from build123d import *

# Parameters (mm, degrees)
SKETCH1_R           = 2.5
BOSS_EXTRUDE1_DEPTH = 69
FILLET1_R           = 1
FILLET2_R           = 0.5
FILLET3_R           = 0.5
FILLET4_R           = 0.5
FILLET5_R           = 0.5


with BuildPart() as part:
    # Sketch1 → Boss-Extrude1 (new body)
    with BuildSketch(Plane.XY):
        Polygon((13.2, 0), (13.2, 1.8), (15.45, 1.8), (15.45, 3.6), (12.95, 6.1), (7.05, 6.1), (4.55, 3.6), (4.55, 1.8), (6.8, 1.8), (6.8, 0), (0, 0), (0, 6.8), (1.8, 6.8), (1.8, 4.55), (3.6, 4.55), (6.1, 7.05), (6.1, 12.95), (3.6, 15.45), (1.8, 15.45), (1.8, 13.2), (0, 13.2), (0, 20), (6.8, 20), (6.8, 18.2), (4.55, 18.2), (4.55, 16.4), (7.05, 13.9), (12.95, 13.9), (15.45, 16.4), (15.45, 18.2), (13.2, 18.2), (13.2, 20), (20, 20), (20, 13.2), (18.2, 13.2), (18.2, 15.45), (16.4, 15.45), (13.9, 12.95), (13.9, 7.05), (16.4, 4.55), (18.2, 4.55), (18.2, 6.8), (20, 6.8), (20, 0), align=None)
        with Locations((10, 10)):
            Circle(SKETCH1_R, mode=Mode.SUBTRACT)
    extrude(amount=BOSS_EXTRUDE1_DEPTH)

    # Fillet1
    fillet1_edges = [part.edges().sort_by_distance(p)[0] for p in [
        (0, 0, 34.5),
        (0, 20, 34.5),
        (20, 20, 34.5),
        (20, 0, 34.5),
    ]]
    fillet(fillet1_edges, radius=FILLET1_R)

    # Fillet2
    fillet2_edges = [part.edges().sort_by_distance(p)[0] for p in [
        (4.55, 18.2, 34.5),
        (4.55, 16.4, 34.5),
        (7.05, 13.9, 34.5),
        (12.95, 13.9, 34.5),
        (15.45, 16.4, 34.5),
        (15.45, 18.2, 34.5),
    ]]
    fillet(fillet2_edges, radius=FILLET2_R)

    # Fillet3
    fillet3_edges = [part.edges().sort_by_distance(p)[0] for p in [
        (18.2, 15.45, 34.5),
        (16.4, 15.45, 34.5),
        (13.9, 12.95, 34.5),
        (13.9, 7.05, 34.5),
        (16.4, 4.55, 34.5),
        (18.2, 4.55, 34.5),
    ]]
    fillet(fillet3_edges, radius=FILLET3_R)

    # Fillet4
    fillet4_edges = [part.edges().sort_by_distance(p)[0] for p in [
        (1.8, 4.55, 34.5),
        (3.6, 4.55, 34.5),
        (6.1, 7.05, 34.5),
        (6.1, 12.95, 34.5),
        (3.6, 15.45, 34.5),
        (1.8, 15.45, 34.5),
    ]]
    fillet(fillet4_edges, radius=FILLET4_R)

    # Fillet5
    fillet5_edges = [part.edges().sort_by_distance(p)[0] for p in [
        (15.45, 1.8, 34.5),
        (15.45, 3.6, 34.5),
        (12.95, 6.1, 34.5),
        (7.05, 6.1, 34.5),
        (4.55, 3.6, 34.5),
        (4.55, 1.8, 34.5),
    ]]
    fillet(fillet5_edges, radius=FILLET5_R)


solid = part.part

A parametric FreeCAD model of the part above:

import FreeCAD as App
import Part
import Sketcher


def edges_at(feature, points):
    """Names of the edges that pass closest to the given points."""
    edges = feature.Shape.Edges
    near = lambda p: min(range(len(edges)), key=lambda i: edges[i].distToShape(Part.Vertex(*p))[0])
    return sorted({f"Edge{near(p) + 1}" for p in points})


def add_polygon(sketch, points):
    """Adds a closed chain of lines whose ends are joined by coincident constraints."""
    first, n = sketch.GeometryCount, len(points)
    for a, b in zip(points, points[1:] + points[:1]):
        sketch.addGeometry(Part.LineSegment(App.Vector(*a, 0), App.Vector(*b, 0)), False)
    for i in range(n):
        sketch.addConstraint(Sketcher.Constraint("Coincident", first + i, 2, first + (i + 1) % n, 1))

doc = App.newDocument("Part")
body = doc.addObject("PartDesign::Body", "Body")

sketch1 = body.newObject("Sketcher::SketchObject", "Sketch")
sketch1.AttachmentSupport = (doc.getObject("XY_Plane"), [""])
sketch1.MapMode = "FlatFace"
add_polygon(sketch1, [(13.2, 1.8), (13.2, 0), (20, 0), (20, 6.8), (18.2, 6.8), (18.2, 4.5), (16.4, 4.5), (13.9, 7), (13.9, 12.9), (16.4, 15.4), (18.2, 15.4), (18.2, 13.2), (20, 13.2), (20, 20), (13.2, 20), (13.2, 18.2), (15.4, 18.2), (15.4, 16.4), (12.9, 13.9), (7, 13.9), (4.5, 16.4), (4.5, 18.2), (6.8, 18.2), (6.8, 20), (0, 20), (0, 13.2), (1.8, 13.2), (1.8, 15.4), (3.6, 15.4), (6.1, 12.9), (6.1, 7), (3.6, 4.5), (1.8, 4.5), (1.8, 6.8), (0, 6.8), (0, 0), (6.8, 0), (6.8, 1.8), (4.5, 1.8), (4.5, 3.6), (7, 6.1), (12.9, 6.1), (15.4, 3.6), (15.4, 1.8)])
sketch1.addGeometry(Part.Circle(App.Vector(10, 10, 0), App.Vector(0, 0, 1), 2.5), False)
sketch1.addConstraint(Sketcher.Constraint("Vertical", 0))
sketch1.addConstraint(Sketcher.Constraint("Horizontal", 1))
sketch1.addConstraint(Sketcher.Constraint("Vertical", 2))
sketch1.addConstraint(Sketcher.Constraint("Horizontal", 3))
sketch1.addConstraint(Sketcher.Constraint("Vertical", 4))
sketch1.addConstraint(Sketcher.Constraint("Horizontal", 5))
sketch1.addConstraint(Sketcher.Constraint("Vertical", 7))
sketch1.addConstraint(Sketcher.Constraint("Horizontal", 9))
sketch1.addConstraint(Sketcher.Constraint("Vertical", 10))
sketch1.addConstraint(Sketcher.Constraint("Horizontal", 11))
sketch1.addConstraint(Sketcher.Constraint("Vertical", 12))
sketch1.addConstraint(Sketcher.Constraint("Horizontal", 13))
sketch1.addConstraint(Sketcher.Constraint("Vertical", 14))
sketch1.addConstraint(Sketcher.Constraint("Horizontal", 15))
sketch1.addConstraint(Sketcher.Constraint("Vertical", 16))
sketch1.addConstraint(Sketcher.Constraint("Horizontal", 18))
sketch1.addConstraint(Sketcher.Constraint("Vertical", 20))
sketch1.addConstraint(Sketcher.Constraint("Horizontal", 21))
sketch1.addConstraint(Sketcher.Constraint("Vertical", 22))
sketch1.addConstraint(Sketcher.Constraint("Horizontal", 23))
sketch1.addConstraint(Sketcher.Constraint("Vertical", 24))
sketch1.addConstraint(Sketcher.Constraint("Horizontal", 25))
sketch1.addConstraint(Sketcher.Constraint("Vertical", 26))
sketch1.addConstraint(Sketcher.Constraint("Horizontal", 27))
sketch1.addConstraint(Sketcher.Constraint("Vertical", 29))
sketch1.addConstraint(Sketcher.Constraint("Horizontal", 31))
sketch1.addConstraint(Sketcher.Constraint("Vertical", 32))
sketch1.addConstraint(Sketcher.Constraint("Horizontal", 33))
sketch1.addConstraint(Sketcher.Constraint("Vertical", 34))
sketch1.addConstraint(Sketcher.Constraint("Horizontal", 35))
sketch1.addConstraint(Sketcher.Constraint("Vertical", 36))
sketch1.addConstraint(Sketcher.Constraint("Horizontal", 37))
sketch1.addConstraint(Sketcher.Constraint("Vertical", 38))
sketch1.addConstraint(Sketcher.Constraint("Horizontal", 40))
sketch1.addConstraint(Sketcher.Constraint("Vertical", 42))
sketch1.addConstraint(Sketcher.Constraint("Horizontal", 43))
sketch1.addConstraint(Sketcher.Constraint("Coincident", 34, 2, -1, 1))
sketch1.addConstraint(Sketcher.Constraint("PointOnObject", 0, 2, -1))
sketch1.addConstraint(Sketcher.Constraint("PointOnObject", 23, 2, -2))
sketch1.addConstraint(Sketcher.Constraint("Perpendicular", 6, 8))
sketch1.addConstraint(Sketcher.Constraint("Parallel", 8, 17))
sketch1.addConstraint(Sketcher.Constraint("Perpendicular", 17, 19))
sketch1.addConstraint(Sketcher.Constraint("Parallel", 19, 28))
sketch1.addConstraint(Sketcher.Constraint("Perpendicular", 28, 30))
sketch1.addConstraint(Sketcher.Constraint("Parallel", 30, 39))
sketch1.addConstraint(Sketcher.Constraint("Perpendicular", 39, 41))
sketch1.addConstraint(Sketcher.Constraint("Horizontal", 16, 2, 19, 2))
sketch1.addConstraint(Sketcher.Constraint("Horizontal", 15, 2, 20, 2))
sketch1.addConstraint(Sketcher.Constraint("Horizontal", 13, 2, 22, 2))
sketch1.addConstraint(Sketcher.Constraint("Horizontal", 11, 2, 24, 2))
sketch1.addConstraint(Sketcher.Constraint("Horizontal", 9, 2, 26, 2))
sketch1.addConstraint(Sketcher.Constraint("Horizontal", 7, 2, 28, 2))
sketch1.addConstraint(Sketcher.Constraint("Horizontal", 6, 2, 29, 2))
sketch1.addConstraint(Sketcher.Constraint("Horizontal", 5, 2, 30, 2))
sketch1.addConstraint(Sketcher.Constraint("Horizontal", 3, 2, 32, 2))
sketch1.addConstraint(Sketcher.Constraint("Horizontal", 38, 2, 41, 2))
sketch1.addConstraint(Sketcher.Constraint("Horizontal", 37, 2, 42, 2))
sketch1.addConstraint(Sketcher.Constraint("Vertical", 5, 2, 8, 2))
sketch1.addConstraint(Sketcher.Constraint("Vertical", 4, 2, 9, 2))
sketch1.addConstraint(Sketcher.Constraint("Vertical", 2, 2, 11, 2))
sketch1.addConstraint(Sketcher.Constraint("Vertical", 0, 2, 13, 2))
sketch1.addConstraint(Sketcher.Constraint("Vertical", 27, 2, 30, 2))
sketch1.addConstraint(Sketcher.Constraint("Vertical", 26, 2, 31, 2))
sketch1.addConstraint(Sketcher.Constraint("Vertical", 22, 2, 35, 2))
sketch1.addConstraint(Sketcher.Constraint("Vertical", 20, 2, 37, 2))
sketch1.addConstraint(Sketcher.Constraint("Vertical", 18, 2, 39, 2))
sketch1.addConstraint(Sketcher.Constraint("Vertical", 17, 2, 40, 2))
sketch1.addConstraint(Sketcher.Constraint("Equal", 3, 5))
sketch1.addConstraint(Sketcher.Constraint("Equal", 15, 21))
sketch1.addConstraint(Sketcher.Constraint("Equal", 13, 23))
sketch1.addConstraint(Sketcher.Constraint("Equal", 11, 25))
sketch1.addConstraint(Sketcher.Constraint("Equal", 25, 27))
sketch1.addConstraint(Sketcher.Constraint("Equal", 33, 0))
sketch1.addConstraint(Sketcher.Constraint("Equal", 35, 2))
sketch1.addConstraint(Sketcher.Constraint("Equal", 43, 4))
sketch1.addConstraint(Sketcher.Constraint("Equal", 40, 7))
sketch1.addConstraint(Sketcher.Constraint("Equal", 4, 10))
sketch1.addConstraint(Sketcher.Constraint("Equal", 2, 12))
sketch1.addConstraint(Sketcher.Constraint("Equal", 0, 14))
sketch1.addConstraint(Sketcher.Constraint("Equal", 14, 16))
sketch1.addConstraint(Sketcher.Constraint("Equal", 36, 38))
sketch1.addConstraint(Sketcher.Constraint("Equal", 8, 17))
sketch1.addConstraint(Sketcher.Constraint("Diameter", 44, 5.0))
sketch1.addConstraint(Sketcher.Constraint("DistanceX", 1, 1, 1, 2, 6.8))
sketch1.addConstraint(Sketcher.Constraint("DistanceX", 3, 2, 3, 1, 1.8))
sketch1.addConstraint(Sketcher.Constraint("DistanceX", 18, 2, 18, 1, 5.9))
sketch1.addConstraint(Sketcher.Constraint("DistanceX", -1, 1, 44, 3, 10.0))
sketch1.addConstraint(Sketcher.Constraint("DistanceY", -1, 1, 44, 3, 10.0))
sketch1.addConstraint(Sketcher.Constraint("DistanceX", -1, 1, 1, 2, 20.0))
sketch1.addConstraint(Sketcher.Constraint("DistanceX", 15, 1, 15, 2, 2.25))
pad1 = body.newObject("PartDesign::Pad", "Pad")
pad1.Profile = sketch1
pad1.Length = 69
doc.recompute()

fillet = body.newObject("PartDesign::Fillet", "Fillet")
fillet.Base = (pad1, edges_at(pad1, [
    (0, 0, 34.5),
    (0, 20, 34.5),
    (20, 20, 34.5),
    (20, 0, 34.5),
]))
fillet.Radius = 1
doc.recompute()

fillet2 = body.newObject("PartDesign::Fillet", "Fillet001")
fillet2.Base = (fillet, edges_at(fillet, [
    (4.55, 18.2, 34.5),
    (4.55, 16.4, 34.5),
    (7.05, 13.9, 34.5),
    (12.95, 13.9, 34.5),
    (15.45, 16.4, 34.5),
    (15.45, 18.2, 34.5),
]))
fillet2.Radius = 0.5
doc.recompute()

fillet3 = body.newObject("PartDesign::Fillet", "Fillet002")
fillet3.Base = (fillet2, edges_at(fillet2, [
    (18.2, 15.45, 34.5),
    (16.4, 15.45, 34.5),
    (13.9, 12.95, 34.5),
    (13.9, 7.05, 34.5),
    (16.4, 4.55, 34.5),
    (18.2, 4.55, 34.5),
]))
fillet3.Radius = 0.5
doc.recompute()

fillet4 = body.newObject("PartDesign::Fillet", "Fillet003")
fillet4.Base = (fillet3, edges_at(fillet3, [
    (1.8, 4.55, 34.5),
    (3.6, 4.55, 34.5),
    (6.1, 7.05, 34.5),
    (6.1, 12.95, 34.5),
    (3.6, 15.45, 34.5),
    (1.8, 15.45, 34.5),
]))
fillet4.Radius = 0.5
doc.recompute()

fillet5 = body.newObject("PartDesign::Fillet", "Fillet004")
fillet5.Base = (fillet4, edges_at(fillet4, [
    (15.45, 1.8, 34.5),
    (15.45, 3.6, 34.5),
    (12.95, 6.1, 34.5),
    (7.05, 6.1, 34.5),
    (4.55, 3.6, 34.5),
    (4.55, 1.8, 34.5),
]))
fillet5.Radius = 0.5

doc.recompute()
